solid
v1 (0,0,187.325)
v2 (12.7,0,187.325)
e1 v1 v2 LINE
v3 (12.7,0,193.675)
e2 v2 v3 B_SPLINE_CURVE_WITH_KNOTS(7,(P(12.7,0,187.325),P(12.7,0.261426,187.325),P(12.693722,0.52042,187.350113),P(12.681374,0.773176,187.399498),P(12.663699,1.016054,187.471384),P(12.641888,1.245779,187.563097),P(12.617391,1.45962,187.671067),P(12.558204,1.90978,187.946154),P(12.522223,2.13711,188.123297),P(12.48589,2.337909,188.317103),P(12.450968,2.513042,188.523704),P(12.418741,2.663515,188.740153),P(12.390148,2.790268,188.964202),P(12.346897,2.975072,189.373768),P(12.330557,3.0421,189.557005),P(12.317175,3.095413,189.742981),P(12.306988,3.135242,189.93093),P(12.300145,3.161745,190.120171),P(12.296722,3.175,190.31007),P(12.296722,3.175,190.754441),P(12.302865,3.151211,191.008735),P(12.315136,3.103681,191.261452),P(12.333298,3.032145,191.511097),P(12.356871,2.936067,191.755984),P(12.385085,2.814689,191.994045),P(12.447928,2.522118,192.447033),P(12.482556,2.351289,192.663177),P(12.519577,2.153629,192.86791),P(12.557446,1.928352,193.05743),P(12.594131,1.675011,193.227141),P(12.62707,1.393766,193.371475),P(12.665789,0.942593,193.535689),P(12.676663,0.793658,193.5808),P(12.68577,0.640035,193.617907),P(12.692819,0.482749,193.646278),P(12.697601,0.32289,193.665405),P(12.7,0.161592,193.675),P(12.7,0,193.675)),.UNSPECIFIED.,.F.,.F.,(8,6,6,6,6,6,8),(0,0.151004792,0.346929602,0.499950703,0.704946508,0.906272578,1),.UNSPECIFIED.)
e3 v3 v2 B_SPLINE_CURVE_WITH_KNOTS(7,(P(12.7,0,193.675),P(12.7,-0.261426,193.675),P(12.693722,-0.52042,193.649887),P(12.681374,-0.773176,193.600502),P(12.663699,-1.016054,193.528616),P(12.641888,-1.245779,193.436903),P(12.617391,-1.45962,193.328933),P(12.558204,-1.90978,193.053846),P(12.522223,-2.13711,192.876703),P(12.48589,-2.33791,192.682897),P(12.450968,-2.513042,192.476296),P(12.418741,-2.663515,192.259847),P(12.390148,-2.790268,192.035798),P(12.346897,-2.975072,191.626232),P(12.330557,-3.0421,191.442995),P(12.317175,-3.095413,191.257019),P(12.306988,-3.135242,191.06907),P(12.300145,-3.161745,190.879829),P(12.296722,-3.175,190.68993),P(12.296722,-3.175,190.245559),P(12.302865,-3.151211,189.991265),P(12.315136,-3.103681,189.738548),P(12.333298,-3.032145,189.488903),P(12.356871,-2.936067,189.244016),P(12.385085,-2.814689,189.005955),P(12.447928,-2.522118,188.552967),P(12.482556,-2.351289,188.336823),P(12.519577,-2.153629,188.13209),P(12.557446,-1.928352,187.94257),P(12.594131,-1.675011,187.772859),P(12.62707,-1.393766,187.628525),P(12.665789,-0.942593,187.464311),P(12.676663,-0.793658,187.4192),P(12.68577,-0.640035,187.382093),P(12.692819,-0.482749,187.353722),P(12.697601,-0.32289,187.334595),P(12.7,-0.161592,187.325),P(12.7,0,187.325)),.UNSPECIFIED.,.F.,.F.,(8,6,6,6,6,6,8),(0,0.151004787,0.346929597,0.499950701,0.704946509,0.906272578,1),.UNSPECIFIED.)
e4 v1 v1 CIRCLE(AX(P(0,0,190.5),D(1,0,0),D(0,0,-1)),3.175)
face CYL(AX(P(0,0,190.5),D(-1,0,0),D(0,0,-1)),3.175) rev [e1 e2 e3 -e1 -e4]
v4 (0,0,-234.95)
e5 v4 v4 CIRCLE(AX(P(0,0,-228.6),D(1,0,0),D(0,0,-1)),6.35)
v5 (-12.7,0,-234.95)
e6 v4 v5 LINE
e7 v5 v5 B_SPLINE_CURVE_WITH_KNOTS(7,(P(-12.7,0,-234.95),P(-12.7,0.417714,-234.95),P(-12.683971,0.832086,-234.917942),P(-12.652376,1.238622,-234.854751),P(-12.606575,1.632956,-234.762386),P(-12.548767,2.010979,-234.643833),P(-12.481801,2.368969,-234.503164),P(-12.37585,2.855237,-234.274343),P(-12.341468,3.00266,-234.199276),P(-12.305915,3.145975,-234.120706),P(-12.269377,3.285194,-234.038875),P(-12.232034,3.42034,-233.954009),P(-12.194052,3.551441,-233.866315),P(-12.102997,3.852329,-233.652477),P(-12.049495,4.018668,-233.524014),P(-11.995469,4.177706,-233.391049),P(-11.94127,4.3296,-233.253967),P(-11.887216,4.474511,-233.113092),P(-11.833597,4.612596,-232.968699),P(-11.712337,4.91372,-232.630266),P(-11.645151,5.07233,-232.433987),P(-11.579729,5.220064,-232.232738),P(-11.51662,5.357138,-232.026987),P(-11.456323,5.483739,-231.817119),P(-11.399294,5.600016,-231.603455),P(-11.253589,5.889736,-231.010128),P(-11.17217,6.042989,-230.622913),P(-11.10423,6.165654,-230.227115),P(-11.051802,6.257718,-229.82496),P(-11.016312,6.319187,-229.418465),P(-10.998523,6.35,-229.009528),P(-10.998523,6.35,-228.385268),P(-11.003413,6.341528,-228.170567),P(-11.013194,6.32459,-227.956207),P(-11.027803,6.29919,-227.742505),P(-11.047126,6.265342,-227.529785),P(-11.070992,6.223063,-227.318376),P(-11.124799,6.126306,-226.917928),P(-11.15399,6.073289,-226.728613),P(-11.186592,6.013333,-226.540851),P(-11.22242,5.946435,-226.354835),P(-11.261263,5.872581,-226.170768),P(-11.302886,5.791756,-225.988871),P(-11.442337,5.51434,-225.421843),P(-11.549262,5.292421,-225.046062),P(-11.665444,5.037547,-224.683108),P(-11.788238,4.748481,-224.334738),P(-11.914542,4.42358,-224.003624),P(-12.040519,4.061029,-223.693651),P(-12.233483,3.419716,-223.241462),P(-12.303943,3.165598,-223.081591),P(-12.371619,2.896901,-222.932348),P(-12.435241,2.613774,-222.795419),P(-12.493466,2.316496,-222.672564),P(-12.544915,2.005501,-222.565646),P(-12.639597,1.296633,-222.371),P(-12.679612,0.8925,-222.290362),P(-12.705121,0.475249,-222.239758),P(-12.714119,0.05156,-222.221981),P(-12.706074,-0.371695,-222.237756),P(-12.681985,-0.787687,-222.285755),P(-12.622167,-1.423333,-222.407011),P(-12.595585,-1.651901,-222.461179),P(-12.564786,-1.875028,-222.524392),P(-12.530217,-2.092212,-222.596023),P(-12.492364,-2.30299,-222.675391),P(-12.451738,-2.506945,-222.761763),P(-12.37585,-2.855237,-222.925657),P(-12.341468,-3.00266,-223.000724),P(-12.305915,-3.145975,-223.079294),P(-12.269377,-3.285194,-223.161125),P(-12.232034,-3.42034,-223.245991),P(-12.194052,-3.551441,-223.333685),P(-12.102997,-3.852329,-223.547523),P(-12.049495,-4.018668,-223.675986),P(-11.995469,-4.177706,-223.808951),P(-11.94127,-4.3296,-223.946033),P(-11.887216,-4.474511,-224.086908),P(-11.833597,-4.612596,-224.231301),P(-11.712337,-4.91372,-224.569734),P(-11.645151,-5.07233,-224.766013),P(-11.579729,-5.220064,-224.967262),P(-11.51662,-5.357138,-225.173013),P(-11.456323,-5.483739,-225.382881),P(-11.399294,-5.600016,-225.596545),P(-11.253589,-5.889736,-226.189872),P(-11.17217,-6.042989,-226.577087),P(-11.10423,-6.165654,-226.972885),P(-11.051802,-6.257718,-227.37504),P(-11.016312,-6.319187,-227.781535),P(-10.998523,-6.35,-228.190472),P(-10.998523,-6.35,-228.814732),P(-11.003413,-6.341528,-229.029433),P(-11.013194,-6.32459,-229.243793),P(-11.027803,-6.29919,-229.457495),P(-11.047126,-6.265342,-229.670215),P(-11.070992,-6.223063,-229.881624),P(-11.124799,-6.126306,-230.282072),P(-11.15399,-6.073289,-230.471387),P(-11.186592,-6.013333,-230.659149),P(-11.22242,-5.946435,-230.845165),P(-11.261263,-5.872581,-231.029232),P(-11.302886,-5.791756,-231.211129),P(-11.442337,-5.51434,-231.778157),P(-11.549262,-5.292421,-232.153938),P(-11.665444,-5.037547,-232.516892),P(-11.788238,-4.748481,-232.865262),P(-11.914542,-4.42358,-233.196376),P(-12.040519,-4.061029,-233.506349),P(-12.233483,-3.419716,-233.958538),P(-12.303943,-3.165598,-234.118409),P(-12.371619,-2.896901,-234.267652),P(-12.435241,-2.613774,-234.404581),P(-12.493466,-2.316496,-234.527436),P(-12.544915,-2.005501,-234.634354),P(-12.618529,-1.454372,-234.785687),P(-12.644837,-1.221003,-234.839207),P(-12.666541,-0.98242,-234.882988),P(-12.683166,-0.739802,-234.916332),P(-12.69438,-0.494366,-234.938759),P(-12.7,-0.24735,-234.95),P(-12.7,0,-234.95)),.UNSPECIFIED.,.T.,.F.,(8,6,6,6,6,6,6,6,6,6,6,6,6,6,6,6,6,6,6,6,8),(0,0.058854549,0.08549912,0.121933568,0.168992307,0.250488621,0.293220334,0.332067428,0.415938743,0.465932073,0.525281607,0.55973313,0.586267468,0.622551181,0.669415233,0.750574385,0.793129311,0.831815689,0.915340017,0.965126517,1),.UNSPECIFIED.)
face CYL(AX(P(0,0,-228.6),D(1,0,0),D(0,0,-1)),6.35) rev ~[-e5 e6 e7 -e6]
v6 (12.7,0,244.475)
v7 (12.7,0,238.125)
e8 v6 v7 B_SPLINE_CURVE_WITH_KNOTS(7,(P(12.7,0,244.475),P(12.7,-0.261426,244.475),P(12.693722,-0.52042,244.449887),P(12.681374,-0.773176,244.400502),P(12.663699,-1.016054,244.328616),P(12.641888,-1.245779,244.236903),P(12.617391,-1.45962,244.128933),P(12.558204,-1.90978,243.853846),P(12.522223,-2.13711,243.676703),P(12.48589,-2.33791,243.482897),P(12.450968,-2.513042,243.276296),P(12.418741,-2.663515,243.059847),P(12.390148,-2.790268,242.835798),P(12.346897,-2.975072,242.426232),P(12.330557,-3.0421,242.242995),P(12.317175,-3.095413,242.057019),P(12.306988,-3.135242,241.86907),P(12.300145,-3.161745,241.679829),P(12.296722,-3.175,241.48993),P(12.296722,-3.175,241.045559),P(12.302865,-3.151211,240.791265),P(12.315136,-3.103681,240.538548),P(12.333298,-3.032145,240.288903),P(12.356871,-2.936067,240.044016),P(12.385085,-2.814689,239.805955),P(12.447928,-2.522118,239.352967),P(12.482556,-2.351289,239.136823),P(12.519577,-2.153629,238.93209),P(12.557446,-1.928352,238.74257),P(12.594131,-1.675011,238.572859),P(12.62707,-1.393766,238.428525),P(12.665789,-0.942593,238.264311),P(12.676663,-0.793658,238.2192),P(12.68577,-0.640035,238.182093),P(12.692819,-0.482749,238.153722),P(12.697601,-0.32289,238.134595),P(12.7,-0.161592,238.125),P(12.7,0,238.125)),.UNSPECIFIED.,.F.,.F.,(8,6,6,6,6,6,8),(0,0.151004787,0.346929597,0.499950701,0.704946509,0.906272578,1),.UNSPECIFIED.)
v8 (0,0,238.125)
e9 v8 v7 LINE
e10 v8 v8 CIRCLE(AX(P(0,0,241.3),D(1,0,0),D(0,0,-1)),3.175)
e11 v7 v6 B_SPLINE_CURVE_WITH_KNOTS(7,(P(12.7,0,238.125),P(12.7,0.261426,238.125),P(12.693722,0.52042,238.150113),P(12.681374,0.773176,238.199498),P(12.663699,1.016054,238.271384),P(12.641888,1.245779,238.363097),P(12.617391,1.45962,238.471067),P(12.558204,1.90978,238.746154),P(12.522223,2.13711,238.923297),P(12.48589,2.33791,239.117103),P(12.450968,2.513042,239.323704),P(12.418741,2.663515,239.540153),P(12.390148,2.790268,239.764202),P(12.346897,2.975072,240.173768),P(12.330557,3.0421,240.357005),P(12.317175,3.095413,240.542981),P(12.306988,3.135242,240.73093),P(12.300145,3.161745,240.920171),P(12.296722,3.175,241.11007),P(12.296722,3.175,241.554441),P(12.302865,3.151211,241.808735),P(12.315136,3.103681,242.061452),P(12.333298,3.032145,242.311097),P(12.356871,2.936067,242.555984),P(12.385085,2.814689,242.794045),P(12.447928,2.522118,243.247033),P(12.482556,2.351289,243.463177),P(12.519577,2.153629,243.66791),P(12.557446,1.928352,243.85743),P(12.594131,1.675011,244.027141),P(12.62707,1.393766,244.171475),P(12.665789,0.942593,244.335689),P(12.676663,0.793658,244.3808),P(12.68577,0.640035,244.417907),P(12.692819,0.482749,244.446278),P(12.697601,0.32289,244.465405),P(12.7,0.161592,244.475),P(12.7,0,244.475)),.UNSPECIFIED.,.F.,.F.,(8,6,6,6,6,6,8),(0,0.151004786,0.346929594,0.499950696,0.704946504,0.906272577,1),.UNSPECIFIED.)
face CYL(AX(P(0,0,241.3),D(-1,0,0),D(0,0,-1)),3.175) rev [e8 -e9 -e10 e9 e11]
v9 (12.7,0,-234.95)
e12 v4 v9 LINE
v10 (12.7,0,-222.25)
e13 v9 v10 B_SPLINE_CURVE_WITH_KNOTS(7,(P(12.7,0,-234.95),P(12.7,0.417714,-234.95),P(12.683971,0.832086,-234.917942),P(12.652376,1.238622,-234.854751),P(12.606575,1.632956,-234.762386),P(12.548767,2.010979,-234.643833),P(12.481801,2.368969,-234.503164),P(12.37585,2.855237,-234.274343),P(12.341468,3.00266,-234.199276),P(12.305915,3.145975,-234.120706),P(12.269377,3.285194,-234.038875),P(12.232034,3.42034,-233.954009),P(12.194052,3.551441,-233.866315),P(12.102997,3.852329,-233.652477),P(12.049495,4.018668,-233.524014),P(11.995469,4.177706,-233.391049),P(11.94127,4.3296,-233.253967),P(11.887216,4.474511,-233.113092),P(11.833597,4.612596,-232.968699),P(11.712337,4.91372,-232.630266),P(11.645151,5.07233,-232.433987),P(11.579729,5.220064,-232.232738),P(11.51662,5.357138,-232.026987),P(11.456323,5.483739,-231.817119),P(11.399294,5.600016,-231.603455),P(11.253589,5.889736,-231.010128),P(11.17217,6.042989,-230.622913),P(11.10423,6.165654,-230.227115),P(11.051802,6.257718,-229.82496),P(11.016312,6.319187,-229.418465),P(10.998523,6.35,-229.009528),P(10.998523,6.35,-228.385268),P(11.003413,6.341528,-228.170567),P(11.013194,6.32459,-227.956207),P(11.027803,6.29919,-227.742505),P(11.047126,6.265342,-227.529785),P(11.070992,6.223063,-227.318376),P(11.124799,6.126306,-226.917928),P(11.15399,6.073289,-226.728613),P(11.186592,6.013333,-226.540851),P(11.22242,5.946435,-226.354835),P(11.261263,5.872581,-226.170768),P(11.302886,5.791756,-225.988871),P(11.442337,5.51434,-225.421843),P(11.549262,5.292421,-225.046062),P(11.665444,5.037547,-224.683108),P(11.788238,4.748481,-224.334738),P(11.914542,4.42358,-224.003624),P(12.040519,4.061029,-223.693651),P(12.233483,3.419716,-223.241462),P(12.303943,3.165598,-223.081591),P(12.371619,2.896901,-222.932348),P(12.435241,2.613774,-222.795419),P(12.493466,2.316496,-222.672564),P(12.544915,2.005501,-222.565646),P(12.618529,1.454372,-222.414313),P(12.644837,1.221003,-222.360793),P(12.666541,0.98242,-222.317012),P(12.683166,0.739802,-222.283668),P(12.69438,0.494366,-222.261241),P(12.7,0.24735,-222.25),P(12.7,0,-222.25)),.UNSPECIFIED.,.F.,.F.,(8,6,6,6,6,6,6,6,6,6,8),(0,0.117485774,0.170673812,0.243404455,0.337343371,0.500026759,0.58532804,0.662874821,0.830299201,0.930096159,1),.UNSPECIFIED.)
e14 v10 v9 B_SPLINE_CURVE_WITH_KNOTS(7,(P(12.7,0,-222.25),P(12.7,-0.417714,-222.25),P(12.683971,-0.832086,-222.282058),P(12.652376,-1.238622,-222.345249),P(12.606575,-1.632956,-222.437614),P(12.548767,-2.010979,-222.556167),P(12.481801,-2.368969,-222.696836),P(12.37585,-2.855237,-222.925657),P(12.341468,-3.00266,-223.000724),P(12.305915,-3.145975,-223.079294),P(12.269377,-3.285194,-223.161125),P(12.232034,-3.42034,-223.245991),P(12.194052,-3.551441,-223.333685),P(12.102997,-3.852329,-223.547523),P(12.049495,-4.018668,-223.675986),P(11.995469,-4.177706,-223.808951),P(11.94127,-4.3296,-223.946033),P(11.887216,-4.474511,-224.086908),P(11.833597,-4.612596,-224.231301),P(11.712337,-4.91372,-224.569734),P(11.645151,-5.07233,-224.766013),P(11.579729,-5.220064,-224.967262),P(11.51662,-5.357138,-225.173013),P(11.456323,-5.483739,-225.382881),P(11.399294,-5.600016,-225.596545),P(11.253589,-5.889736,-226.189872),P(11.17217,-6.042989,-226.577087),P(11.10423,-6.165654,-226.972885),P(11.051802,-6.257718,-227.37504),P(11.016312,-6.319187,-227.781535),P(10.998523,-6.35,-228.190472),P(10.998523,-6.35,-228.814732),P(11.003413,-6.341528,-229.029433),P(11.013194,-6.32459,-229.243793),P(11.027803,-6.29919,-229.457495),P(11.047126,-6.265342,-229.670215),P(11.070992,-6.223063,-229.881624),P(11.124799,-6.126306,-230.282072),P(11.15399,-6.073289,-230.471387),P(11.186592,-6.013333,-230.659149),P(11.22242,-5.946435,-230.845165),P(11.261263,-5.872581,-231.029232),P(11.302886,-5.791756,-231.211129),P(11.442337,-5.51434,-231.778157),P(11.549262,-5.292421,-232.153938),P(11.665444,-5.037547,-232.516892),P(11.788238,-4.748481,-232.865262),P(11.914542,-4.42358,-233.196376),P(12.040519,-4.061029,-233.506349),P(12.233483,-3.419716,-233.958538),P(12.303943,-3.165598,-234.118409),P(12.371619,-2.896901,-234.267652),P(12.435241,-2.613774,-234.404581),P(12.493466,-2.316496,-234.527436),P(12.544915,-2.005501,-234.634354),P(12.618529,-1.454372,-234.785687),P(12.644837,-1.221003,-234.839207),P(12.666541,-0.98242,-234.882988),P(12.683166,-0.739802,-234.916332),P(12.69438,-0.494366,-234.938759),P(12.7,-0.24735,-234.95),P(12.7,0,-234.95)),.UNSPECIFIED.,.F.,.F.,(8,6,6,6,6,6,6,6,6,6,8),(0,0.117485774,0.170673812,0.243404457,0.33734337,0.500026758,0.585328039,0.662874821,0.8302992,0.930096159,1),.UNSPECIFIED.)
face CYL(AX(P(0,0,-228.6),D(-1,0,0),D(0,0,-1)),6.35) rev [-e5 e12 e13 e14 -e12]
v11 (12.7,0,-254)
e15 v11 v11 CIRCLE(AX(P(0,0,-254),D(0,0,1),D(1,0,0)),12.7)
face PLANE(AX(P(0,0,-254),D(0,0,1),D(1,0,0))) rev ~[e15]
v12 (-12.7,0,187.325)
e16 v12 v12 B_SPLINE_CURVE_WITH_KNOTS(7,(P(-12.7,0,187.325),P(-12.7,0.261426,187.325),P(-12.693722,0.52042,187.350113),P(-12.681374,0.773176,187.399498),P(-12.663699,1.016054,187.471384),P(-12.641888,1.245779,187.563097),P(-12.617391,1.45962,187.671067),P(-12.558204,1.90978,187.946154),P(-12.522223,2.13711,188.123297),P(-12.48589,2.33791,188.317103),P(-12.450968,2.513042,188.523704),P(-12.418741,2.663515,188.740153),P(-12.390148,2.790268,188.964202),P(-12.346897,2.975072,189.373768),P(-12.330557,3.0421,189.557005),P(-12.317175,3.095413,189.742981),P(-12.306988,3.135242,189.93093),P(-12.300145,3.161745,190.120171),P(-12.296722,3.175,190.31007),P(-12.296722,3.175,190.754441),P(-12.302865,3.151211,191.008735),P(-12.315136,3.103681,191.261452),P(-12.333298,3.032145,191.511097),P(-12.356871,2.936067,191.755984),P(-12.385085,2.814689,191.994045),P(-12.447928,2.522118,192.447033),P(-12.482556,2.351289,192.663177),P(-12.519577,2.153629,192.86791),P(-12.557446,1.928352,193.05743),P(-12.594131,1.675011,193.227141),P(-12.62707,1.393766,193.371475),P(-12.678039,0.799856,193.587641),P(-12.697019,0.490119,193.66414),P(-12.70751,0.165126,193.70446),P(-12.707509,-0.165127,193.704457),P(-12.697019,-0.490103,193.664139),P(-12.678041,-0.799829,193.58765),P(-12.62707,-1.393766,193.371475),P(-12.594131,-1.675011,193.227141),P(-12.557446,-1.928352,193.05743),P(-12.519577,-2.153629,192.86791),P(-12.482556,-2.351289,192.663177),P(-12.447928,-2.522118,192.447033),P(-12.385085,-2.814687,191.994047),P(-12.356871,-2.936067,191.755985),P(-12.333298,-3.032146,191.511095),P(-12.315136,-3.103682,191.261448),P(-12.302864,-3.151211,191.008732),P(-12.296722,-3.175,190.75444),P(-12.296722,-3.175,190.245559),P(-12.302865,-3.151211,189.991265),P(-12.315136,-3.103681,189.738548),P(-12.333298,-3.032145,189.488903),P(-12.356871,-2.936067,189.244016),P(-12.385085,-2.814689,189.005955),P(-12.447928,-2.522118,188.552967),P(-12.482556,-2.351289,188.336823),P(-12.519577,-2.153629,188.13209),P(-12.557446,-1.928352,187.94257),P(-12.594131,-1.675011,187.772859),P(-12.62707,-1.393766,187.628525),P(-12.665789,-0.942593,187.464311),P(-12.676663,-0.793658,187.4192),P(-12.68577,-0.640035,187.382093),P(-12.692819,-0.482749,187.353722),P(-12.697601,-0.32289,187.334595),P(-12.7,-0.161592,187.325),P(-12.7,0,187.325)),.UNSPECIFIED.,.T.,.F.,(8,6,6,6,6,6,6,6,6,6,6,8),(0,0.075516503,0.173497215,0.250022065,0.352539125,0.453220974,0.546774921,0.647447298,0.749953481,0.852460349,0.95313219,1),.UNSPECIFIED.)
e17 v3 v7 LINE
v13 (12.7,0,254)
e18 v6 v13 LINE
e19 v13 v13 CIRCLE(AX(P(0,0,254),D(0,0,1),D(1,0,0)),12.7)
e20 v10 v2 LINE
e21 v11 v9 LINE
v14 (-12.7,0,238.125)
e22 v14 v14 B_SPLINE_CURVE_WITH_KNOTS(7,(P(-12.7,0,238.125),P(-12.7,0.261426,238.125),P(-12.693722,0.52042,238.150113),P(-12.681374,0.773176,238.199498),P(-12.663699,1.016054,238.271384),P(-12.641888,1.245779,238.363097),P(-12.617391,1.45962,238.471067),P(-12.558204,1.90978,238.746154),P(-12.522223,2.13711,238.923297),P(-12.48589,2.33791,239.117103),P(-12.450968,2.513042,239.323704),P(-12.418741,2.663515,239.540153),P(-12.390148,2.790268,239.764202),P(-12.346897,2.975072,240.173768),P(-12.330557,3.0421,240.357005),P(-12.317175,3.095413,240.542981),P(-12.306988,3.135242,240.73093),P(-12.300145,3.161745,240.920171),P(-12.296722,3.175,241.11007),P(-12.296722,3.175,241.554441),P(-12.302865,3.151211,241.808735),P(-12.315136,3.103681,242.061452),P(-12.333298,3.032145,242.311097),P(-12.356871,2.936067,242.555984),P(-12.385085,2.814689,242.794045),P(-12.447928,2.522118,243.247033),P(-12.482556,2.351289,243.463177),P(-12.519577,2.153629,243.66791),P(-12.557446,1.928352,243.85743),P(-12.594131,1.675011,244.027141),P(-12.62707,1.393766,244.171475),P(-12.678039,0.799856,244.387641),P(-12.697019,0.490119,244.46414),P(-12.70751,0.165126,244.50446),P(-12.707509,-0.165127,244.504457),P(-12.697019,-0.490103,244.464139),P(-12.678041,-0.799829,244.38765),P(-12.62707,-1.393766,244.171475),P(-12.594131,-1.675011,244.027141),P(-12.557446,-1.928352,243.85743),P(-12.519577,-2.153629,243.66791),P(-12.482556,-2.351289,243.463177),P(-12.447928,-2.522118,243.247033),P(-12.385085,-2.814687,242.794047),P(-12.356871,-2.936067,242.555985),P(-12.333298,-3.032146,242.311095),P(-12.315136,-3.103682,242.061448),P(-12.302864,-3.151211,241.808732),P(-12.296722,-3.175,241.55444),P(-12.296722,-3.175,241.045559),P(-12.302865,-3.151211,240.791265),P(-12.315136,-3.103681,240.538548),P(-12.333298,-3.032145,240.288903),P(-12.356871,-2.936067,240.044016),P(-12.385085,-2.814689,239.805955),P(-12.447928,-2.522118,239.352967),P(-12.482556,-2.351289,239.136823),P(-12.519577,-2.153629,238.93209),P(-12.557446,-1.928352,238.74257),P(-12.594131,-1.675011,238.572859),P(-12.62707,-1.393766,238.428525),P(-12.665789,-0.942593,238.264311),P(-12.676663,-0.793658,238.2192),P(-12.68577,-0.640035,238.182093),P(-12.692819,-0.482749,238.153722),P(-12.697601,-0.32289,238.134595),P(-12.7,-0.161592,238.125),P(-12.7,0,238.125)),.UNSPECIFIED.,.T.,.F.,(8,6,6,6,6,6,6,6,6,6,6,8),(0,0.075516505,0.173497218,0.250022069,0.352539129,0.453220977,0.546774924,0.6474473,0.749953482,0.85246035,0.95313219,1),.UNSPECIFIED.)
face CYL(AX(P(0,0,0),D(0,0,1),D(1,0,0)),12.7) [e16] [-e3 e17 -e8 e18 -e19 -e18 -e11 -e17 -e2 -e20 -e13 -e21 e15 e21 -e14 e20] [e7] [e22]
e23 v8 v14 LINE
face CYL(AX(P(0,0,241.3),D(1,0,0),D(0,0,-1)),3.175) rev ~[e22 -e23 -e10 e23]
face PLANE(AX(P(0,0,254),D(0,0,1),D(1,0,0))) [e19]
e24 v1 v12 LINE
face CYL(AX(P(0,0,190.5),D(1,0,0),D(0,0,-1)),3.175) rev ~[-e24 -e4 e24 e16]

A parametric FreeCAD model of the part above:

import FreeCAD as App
import Part
import Sketcher

V = App.Vector
Q = App.Units.Quantity

doc = App.newDocument("Part")
body = doc.addObject("PartDesign::Body", "Body")

# Sketch on XY plane
sketch1 = body.newObject("Sketcher::SketchObject", "Sketch")
sketch1.AttachmentSupport = (doc.getObject("XY_Plane"), [""])
sketch1.MapMode = "FlatFace"
sketch1.addGeometry(Part.Circle(V(0, 0, 0), V(0, 0, 1), 12.7), False)
sketch1.addConstraint(Sketcher.Constraint("Coincident", 0, 3, -1, 1))
sketch1.addConstraint(Sketcher.Constraint("Diameter", 0, Q("1 in")))
pad1 = body.newObject("PartDesign::Pad", "Pad")
pad1.Profile = sketch1
pad1.Length = Q("20 in")
pad1.Midplane = True

# Sketch on YZ plane
sketch2 = body.newObject("Sketcher::SketchObject", "Sketch001")
sketch2.AttachmentSupport = (doc.getObject("YZ_Plane"), [""])
sketch2.MapMode = "FlatFace"
sketch2.addGeometry(Part.Circle(V(0, 241.3, 0), V(0, 0, 1), 3.175), False)
sketch2.addGeometry(Part.Circle(V(0, 190.5, 0), V(0, 0, 1), 3.175), False)
sketch2.addGeometry(Part.Circle(V(0, -228.6, 0), V(0, 0, 1), 6.35), False)
sketch2.addConstraint(Sketcher.Constraint("Equal", 0, 1))
sketch2.addConstraint(Sketcher.Constraint("PointOnObject", 0, 3, -2))
sketch2.addConstraint(Sketcher.Constraint("PointOnObject", 1, 3, -2))
sketch2.addConstraint(Sketcher.Constraint("PointOnObject", 2, 3, -2))
sketch2.addConstraint(Sketcher.Constraint("Diameter", 2, Q("0.5 in")))
sketch2.addConstraint(Sketcher.Constraint("Diameter", 0, Q("0.25 in")))
sketch2.addConstraint(Sketcher.Constraint("DistanceY", 2, 3, -1, 1, Q("9 in")))
sketch2.addConstraint(Sketcher.Constraint("DistanceY", 1, 3, 0, 3, Q("2 in")))
sketch2.addConstraint(Sketcher.Constraint("DistanceY", -1, 1, 0, 3, Q("9.5 in")))
pocket1 = body.newObject("PartDesign::Pocket", "Pocket")
pocket1.Profile = sketch2
pocket1.Type = "ThroughAll"
pocket1.Midplane = True

doc.recompute()
